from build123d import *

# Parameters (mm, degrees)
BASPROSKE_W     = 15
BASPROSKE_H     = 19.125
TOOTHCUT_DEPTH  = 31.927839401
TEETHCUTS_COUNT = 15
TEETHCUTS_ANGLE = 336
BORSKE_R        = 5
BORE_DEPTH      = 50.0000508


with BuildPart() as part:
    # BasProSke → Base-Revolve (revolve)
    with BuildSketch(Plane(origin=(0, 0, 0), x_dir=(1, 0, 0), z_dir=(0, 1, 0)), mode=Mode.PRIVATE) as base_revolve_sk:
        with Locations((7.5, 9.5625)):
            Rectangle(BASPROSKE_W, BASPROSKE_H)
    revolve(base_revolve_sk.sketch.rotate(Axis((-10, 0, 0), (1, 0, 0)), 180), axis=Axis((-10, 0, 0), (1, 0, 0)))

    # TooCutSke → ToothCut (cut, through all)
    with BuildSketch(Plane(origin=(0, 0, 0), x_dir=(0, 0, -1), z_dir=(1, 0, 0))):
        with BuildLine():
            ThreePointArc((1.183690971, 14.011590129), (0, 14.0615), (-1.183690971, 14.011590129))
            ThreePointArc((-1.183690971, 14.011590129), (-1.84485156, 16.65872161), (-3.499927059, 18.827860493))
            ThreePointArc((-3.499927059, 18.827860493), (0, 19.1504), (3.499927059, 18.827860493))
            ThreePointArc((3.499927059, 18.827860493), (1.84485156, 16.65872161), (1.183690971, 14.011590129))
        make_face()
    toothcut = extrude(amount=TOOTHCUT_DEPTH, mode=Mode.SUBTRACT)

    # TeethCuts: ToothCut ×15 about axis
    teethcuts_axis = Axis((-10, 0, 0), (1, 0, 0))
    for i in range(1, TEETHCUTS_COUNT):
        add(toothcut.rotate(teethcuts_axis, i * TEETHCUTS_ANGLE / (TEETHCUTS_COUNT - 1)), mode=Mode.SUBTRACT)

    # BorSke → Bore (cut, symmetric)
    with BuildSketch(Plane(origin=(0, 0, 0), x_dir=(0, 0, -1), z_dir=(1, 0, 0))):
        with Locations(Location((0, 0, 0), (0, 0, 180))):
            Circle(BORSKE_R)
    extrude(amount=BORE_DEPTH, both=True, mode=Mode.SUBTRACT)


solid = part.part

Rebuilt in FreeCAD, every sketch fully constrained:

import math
import FreeCAD as App
import Part
import Sketcher
from FreeCAD import Vector

doc = App.newDocument("Part")
body = doc.addObject("PartDesign::Body", "Body")

# Sketch on XZ plane
sketch1 = body.newObject("Sketcher::SketchObject", "Sketch")
sketch1.AttachmentSupport = (doc.getObject("XZ_Plane"), [""])
sketch1.MapMode = "FlatFace"
sketch1.addGeometry([
    Part.LineSegment(Vector(0, -19.125, 0), Vector(0, 0, 0)),
    Part.LineSegment(Vector(0, 0, 0), Vector(15, 0, 0)),
    Part.LineSegment(Vector(15, 0, 0), Vector(15, -19.125, 0)),
    Part.LineSegment(Vector(15, -19.125, 0), Vector(0, -19.125, 0)),
], False)
sketch1.addConstraint([
    Sketcher.Constraint("Coincident", 0, 2, 1, 1),
    Sketcher.Constraint("Coincident", 1, 2, 2, 1),
    Sketcher.Constraint("Coincident", 2, 2, 3, 1),
    Sketcher.Constraint("Coincident", 3, 2, 0, 1),
    Sketcher.Constraint("Vertical", 0),
    Sketcher.Constraint("Horizontal", 1),
    Sketcher.Constraint("Vertical", 2),
    Sketcher.Constraint("Horizontal", 3),
    Sketcher.Constraint("Coincident", 0, 2, -1, 1),
    Sketcher.Constraint("DistanceX", 1, 1, 1, 2, 15.0),
    Sketcher.Constraint("DistanceY", 0, 1, 0, 2, 19.125),
])
revolution = body.newObject("PartDesign::Revolution", "Revolution")
revolution.Profile = sketch1
revolution.ReferenceAxis = (sketch1, ["H_Axis"])
revolution.Angle = 360

# Sketch on YZ plane
sketch2 = body.newObject("Sketcher::SketchObject", "Sketch001")
sketch2.AttachmentSupport = (doc.getObject("YZ_Plane"), [""])
sketch2.MapMode = "FlatFace"
sketch2.addGeometry([
    Part.ArcOfCircle(Part.Circle(Vector(0, 0, 0), Vector(0, 0, 1), 14.0615), math.radians(-4.828848), math.radians(4.828848)),
    Part.ArcOfCircle(Part.Circle(Vector(13.733244, -7.92795, 0), Vector(0, 0, 1), 6.75), math.radians(40.995771), math.radians(87.636655)),
    Part.ArcOfCircle(Part.Circle(Vector(0, 0, 0), Vector(0, 0, 1), 19.1504), math.radians(-10.530563), math.radians(10.530563)),
    Part.ArcOfCircle(Part.Circle(Vector(13.733244, 7.92795, 0), Vector(0, 0, 1), 6.75), math.radians(-87.636655), math.radians(-40.995771)),
], False)
sketch2.addConstraint([
    Sketcher.Constraint("Coincident", 0, 1, 1, 2),
    Sketcher.Constraint("Coincident", 1, 1, 2, 1),
    Sketcher.Constraint("Coincident", 2, 2, 3, 2),
    Sketcher.Constraint("Coincident", 3, 1, 0, 2),
    Sketcher.Constraint("Coincident", 0, 3, -1, 1),
    Sketcher.Constraint("Coincident", 2, 3, -1, 1),
    Sketcher.Constraint("Equal", 1, 3),
    Sketcher.Constraint("Symmetric", 1, 3, 3, 3, -1),
    Sketcher.Constraint("Radius", 1, 6.75),
    Sketcher.Constraint("Radius", 0, 14.0615),
    Sketcher.Constraint("Radius", 2, 19.1504),
    Sketcher.Constraint("DistanceY", 1, 3, 3, 3, 15.855899),
    Sketcher.Constraint("DistanceY", 0, 1, -1, 1, 1.183691),
])
pocket1 = body.newObject("PartDesign::Pocket", "Pocket")
pocket1.Profile = sketch2
pocket1.Type = "ThroughAll"
pocket1.Reversed = True
doc.recompute()

polarpattern = body.newObject("PartDesign::PolarPattern", "PolarPattern")
polarpattern.Originals = [pocket1]
polarpattern.Axis = (doc.getObject("X_Axis"), [""])
polarpattern.Angle = 360
polarpattern.Occurrences = 15
body.Tip = polarpattern

# Sketch on YZ plane
sketch3 = body.newObject("Sketcher::SketchObject", "Sketch002")
sketch3.AttachmentSupport = (doc.getObject("YZ_Plane"), [""])
sketch3.MapMode = "FlatFace"
sketch3.addGeometry(Part.Circle(Vector(0, 0, 0), Vector(0, 0, 1), 5), False)
sketch3.addConstraint([
    Sketcher.Constraint("Coincident", 0, 3, -1, 1),
    Sketcher.Constraint("Diameter", 0, 10.0),
])
pocket2 = body.newObject("PartDesign::Pocket", "Pocket001")
pocket2.Profile = sketch3
pocket2.Length = 100.000102
pocket2.Midplane = True

doc.recompute()
